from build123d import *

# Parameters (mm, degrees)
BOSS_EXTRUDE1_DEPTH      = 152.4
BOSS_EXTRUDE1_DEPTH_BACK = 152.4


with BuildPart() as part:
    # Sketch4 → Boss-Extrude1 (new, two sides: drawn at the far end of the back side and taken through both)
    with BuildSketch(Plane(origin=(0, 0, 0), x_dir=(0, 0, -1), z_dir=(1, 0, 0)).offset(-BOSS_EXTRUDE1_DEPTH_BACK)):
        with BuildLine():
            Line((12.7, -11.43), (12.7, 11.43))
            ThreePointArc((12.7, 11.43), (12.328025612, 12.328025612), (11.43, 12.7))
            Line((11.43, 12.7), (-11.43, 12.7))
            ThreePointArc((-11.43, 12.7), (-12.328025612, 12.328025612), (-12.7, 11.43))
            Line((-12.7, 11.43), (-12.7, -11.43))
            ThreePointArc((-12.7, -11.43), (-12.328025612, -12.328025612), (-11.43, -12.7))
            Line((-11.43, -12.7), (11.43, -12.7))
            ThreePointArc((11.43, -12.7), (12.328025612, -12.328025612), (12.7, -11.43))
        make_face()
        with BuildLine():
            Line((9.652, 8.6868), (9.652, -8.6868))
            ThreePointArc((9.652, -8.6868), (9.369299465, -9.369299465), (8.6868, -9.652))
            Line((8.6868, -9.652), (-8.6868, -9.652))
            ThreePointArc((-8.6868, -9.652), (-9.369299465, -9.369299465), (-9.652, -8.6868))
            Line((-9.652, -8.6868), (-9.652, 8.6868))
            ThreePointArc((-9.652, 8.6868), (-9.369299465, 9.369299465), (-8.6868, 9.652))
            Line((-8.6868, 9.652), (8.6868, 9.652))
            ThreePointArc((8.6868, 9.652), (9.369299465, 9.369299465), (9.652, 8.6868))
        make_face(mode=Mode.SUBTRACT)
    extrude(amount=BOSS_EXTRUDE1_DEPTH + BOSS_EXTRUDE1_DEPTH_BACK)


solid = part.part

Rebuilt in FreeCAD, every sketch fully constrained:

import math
import FreeCAD as App
import Part
import Sketcher

V = App.Vector
Q = App.Units.Quantity

doc = App.newDocument("Part")
body = doc.addObject("PartDesign::Body", "Body")

# Sketch on YZ plane
sketch1 = doc.addObject("Sketcher::SketchObject", "Sketch")
body.addObject(sketch1)
sketch1.AttachmentSupport = (doc.YZ_Plane, [""])
sketch1.MapMode = "FlatFace"
sketch1.addGeometry([
    Part.LineSegment(V(-11.4, -12.7, 0), V(11.4, -12.7, 0)),  # 0
    Part.ArcOfCircle(Part.Circle(V(11.4, -11.4, 0), V(0, 0, 1), 1.3), math.radians(-90), math.radians(0)),  # 1
    Part.LineSegment(V(12.7, -11.4, 0), V(12.7, 11.4, 0)),  # 2
    Part.ArcOfCircle(Part.Circle(V(11.4, 11.4, 0), V(0, 0, 1), 1.3), math.radians(0), math.radians(90)),  # 3
    Part.LineSegment(V(11.4, 12.7, 0), V(-11.4, 12.7, 0)),  # 4
    Part.ArcOfCircle(Part.Circle(V(-11.4, 11.4, 0), V(0, 0, 1), 1.3), math.radians(90), math.radians(180)),  # 5
    Part.LineSegment(V(-12.7, 11.4, 0), V(-12.7, -11.4, 0)),  # 6
    Part.ArcOfCircle(Part.Circle(V(-11.4, -11.4, 0), V(0, 0, 1), 1.3), math.radians(180), math.radians(270)),  # 7
    Part.ArcOfCircle(Part.Circle(V(8.7, -8.7, 0), V(0, 0, 1), 1), math.radians(-90), math.radians(0)),  # 8
    Part.LineSegment(V(8.7, -9.7, 0), V(-8.7, -9.7, 0)),  # 9
    Part.ArcOfCircle(Part.Circle(V(-8.7, -8.7, 0), V(0, 0, 1), 1), math.radians(-180), math.radians(-90)),  # 10
    Part.LineSegment(V(-9.7, -8.7, 0), V(-9.7, 8.7, 0)),  # 11
    Part.ArcOfCircle(Part.Circle(V(-8.7, 8.7, 0), V(0, 0, 1), 1), math.radians(90), math.radians(180)),  # 12
    Part.LineSegment(V(-8.7, 9.7, 0), V(8.7, 9.7, 0)),  # 13
    Part.ArcOfCircle(Part.Circle(V(8.7, 8.7, 0), V(0, 0, 1), 1), math.radians(0), math.radians(90)),  # 14
    Part.LineSegment(V(9.7, 8.7, 0), V(9.7, -8.7, 0)),  # 15
], False)
sketch1.addConstraint([
    Sketcher.Constraint("Tangent", 0, 2, 1, 1),
    Sketcher.Constraint("Tangent", 1, 2, 2, 1),
    Sketcher.Constraint("Tangent", 2, 2, 3, 1),
    Sketcher.Constraint("Tangent", 3, 2, 4, 1),
    Sketcher.Constraint("Tangent", 4, 2, 5, 1),
    Sketcher.Constraint("Tangent", 5, 2, 6, 1),
    Sketcher.Constraint("Tangent", 6, 2, 7, 1),
    Sketcher.Constraint("Tangent", 7, 2, 0, 1),
    Sketcher.Constraint("Tangent", 8, 1, 9, 1),
    Sketcher.Constraint("Tangent", 9, 2, 10, 2),
    Sketcher.Constraint("Tangent", 10, 1, 11, 1),
    Sketcher.Constraint("Tangent", 11, 2, 12, 2),
    Sketcher.Constraint("Tangent", 12, 1, 13, 1),
    Sketcher.Constraint("Tangent", 13, 2, 14, 2),
    Sketcher.Constraint("Tangent", 14, 1, 15, 1),
    Sketcher.Constraint("Tangent", 15, 2, 8, 2),
    Sketcher.Constraint("Horizontal", 0),
    Sketcher.Constraint("Vertical", 2),
    Sketcher.Constraint("Horizontal", 4),
    Sketcher.Constraint("Vertical", 6),
    Sketcher.Constraint("Horizontal", 9),
    Sketcher.Constraint("Vertical", 11),
    Sketcher.Constraint("Horizontal", 13),
    Sketcher.Constraint("Vertical", 15),
    Sketcher.Constraint("Equal", 1, 3),
    Sketcher.Constraint("Equal", 3, 5),
    Sketcher.Constraint("Equal", 5, 7),
    Sketcher.Constraint("Equal", 8, 10),
    Sketcher.Constraint("Equal", 10, 12),
    Sketcher.Constraint("Equal", 12, 14),
    Sketcher.Constraint("Symmetric", 1, 3, 5, 3, -1, 1),
    Sketcher.Constraint("Symmetric", 8, 3, 12, 3, -1, 1),
    Sketcher.Constraint("Equal", 4, 2),
    Sketcher.Constraint("Equal", 13, 11),
    Sketcher.Constraint("Radius", 1, Q("0.05 in")),
    Sketcher.Constraint("DistanceX", 0, 1, 0, 2, Q("0.9 in")),
    Sketcher.Constraint("Radius", 8, Q("0.038 in")),
    Sketcher.Constraint("DistanceX", 9, 2, 9, 1, Q("0.684 in")),
])
pad1 = doc.addObject("PartDesign::Pad", "Pad")
body.addObject(pad1)
pad1.Profile = sketch1
pad1.Type = "TwoLengths"
pad1.Length = Q("6 in")
pad1.Length2 = Q("6 in")

doc.recompute()
